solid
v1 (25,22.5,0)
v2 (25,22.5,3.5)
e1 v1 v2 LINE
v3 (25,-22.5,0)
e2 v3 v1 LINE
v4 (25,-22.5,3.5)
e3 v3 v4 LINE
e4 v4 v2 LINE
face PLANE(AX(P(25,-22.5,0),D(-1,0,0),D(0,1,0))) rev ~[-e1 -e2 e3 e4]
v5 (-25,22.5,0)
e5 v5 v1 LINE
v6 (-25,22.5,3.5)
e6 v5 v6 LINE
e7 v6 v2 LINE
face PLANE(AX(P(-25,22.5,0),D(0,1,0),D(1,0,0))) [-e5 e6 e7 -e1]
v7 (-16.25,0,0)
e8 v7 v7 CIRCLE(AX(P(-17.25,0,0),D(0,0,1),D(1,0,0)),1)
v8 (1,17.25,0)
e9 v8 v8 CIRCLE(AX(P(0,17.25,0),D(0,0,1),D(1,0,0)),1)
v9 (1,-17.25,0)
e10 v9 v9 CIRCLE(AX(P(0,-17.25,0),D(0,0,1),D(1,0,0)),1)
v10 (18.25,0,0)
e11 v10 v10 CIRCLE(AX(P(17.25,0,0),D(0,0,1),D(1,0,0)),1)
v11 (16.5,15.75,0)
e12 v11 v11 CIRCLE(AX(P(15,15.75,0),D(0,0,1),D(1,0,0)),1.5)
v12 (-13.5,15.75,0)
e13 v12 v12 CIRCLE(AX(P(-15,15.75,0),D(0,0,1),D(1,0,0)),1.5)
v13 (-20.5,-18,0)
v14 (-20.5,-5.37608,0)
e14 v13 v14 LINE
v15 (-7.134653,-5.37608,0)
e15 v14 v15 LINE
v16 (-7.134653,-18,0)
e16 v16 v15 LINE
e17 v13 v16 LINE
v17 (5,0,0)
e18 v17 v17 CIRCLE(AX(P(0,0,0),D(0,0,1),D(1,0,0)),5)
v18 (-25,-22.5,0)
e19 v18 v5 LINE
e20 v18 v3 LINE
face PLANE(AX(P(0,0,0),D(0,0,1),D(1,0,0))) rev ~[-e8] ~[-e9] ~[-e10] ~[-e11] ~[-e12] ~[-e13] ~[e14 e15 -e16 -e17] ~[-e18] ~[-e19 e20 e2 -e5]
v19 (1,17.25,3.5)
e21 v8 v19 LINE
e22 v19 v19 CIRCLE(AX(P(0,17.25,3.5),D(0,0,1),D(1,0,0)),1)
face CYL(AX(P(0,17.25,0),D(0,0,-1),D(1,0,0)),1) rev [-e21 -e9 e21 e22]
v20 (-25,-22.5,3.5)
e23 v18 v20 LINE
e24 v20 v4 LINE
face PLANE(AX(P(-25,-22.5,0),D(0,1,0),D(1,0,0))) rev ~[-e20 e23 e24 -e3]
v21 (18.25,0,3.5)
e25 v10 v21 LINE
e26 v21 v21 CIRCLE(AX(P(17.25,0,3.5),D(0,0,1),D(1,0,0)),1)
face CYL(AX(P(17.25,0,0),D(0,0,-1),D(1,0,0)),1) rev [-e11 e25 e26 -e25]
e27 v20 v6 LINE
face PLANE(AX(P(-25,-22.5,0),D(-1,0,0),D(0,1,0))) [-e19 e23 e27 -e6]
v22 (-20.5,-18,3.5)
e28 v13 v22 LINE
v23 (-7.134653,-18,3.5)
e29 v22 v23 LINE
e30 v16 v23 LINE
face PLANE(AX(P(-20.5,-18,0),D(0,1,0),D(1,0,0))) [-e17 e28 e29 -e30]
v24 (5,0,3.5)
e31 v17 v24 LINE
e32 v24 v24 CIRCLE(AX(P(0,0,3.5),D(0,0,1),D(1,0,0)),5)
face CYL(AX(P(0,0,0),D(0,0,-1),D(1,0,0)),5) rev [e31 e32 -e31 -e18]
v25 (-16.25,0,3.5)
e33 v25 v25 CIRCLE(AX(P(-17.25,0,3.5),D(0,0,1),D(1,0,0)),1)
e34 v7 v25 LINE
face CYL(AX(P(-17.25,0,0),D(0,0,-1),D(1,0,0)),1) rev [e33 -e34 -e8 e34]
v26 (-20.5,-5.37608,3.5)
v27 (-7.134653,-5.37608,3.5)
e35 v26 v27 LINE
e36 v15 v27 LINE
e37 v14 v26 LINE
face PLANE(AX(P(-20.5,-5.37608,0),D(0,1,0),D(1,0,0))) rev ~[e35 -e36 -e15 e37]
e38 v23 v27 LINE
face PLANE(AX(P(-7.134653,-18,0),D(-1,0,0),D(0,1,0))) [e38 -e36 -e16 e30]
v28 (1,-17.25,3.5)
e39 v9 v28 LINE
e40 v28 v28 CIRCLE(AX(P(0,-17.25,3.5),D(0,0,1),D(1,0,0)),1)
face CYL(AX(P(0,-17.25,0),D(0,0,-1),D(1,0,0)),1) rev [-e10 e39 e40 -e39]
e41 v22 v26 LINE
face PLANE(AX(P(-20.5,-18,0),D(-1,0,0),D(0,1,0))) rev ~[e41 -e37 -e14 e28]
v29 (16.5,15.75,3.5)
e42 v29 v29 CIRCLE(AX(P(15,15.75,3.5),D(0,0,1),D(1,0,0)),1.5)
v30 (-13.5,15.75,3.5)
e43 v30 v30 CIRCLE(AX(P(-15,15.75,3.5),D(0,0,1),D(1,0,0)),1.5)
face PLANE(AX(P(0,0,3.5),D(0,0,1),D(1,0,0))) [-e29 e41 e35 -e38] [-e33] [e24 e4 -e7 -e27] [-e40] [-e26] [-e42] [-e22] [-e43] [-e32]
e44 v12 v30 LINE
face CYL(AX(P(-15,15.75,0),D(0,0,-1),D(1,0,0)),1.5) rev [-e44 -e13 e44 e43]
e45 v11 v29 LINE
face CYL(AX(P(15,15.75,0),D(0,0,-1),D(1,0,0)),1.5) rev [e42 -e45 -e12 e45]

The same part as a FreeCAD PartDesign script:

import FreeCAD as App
import Part
import Sketcher
from FreeCAD import Vector


def add_polygon(sketch, points):
    """Adds a closed chain of lines whose ends are joined by coincident constraints."""
    first, n = sketch.GeometryCount, len(points)
    for a, b in zip(points, points[1:] + points[:1]):
        sketch.addGeometry(Part.LineSegment(App.Vector(*a, 0), App.Vector(*b, 0)), False)
    for i in range(n):
        sketch.addConstraint(Sketcher.Constraint("Coincident", first + i, 2, first + (i + 1) % n, 1))

doc = App.newDocument("Part")
body = doc.addObject("PartDesign::Body", "Body")

sketch1 = doc.addObject("Sketcher::SketchObject", "Sketch")
body.addObject(sketch1)
sketch1.AttachmentSupport = (doc.XY_Plane, [""])
sketch1.MapMode = "FlatFace"
add_polygon(sketch1, [(-25, 22.5), (-25, -22.5), (25, -22.5), (25, 22.5)])
add_polygon(sketch1, [(-7.1, -18), (-20.5, -18), (-20.5, -5.4), (-7.1, -5.4)])
sketch1.addGeometry(Part.Circle(Vector(0, -17.2, 0), Vector(0, 0, 1), 1), False)
sketch1.addGeometry(Part.Circle(Vector(-17.2, 0, 0), Vector(0, 0, 1), 1), False)
sketch1.addGeometry(Part.Circle(Vector(-15, 15.8, 0), Vector(0, 0, 1), 1.5), False)
sketch1.addGeometry(Part.Circle(Vector(0, 0, 0), Vector(0, 0, 1), 5), False)
sketch1.addGeometry(Part.Circle(Vector(17.2, 0, 0), Vector(0, 0, 1), 1), False)
sketch1.addGeometry(Part.Circle(Vector(0, 17.2, 0), Vector(0, 0, 1), 1), False)
sketch1.addGeometry(Part.Circle(Vector(15, 15.8, 0), Vector(0, 0, 1), 1.5), False)
sketch1.addConstraint(Sketcher.Constraint("Vertical", 0))
sketch1.addConstraint(Sketcher.Constraint("Horizontal", 1))
sketch1.addConstraint(Sketcher.Constraint("Vertical", 2))
sketch1.addConstraint(Sketcher.Constraint("Horizontal", 3))
sketch1.addConstraint(Sketcher.Constraint("Horizontal", 4))
sketch1.addConstraint(Sketcher.Constraint("Vertical", 5))
sketch1.addConstraint(Sketcher.Constraint("Horizontal", 6))
sketch1.addConstraint(Sketcher.Constraint("Vertical", 7))
sketch1.addConstraint(Sketcher.Constraint("Coincident", 11, 3, -1, 1))
sketch1.addConstraint(Sketcher.Constraint("Equal", 8, 9))
sketch1.addConstraint(Sketcher.Constraint("Equal", 9, 12))
sketch1.addConstraint(Sketcher.Constraint("Equal", 12, 13))
sketch1.addConstraint(Sketcher.Constraint("Equal", 10, 14))
sketch1.addConstraint(Sketcher.Constraint("Symmetric", 9, 3, 12, 3, -1, 1))
sketch1.addConstraint(Sketcher.Constraint("Symmetric", 8, 3, 13, 3, -1, 1))
sketch1.addConstraint(Sketcher.Constraint("Symmetric", 0, 2, 2, 2, -1, 1))
sketch1.addConstraint(Sketcher.Constraint("Symmetric", 10, 3, 14, 3, -2))
sketch1.addConstraint(Sketcher.Constraint("PointOnObject", 8, 3, -2))
sketch1.addConstraint(Sketcher.Constraint("PointOnObject", 9, 3, -1))
sketch1.addConstraint(Sketcher.Constraint("Diameter", 8, 2.0))
sketch1.addConstraint(Sketcher.Constraint("Diameter", 10, 3.0))
sketch1.addConstraint(Sketcher.Constraint("Diameter", 11, 10.0))
sketch1.addConstraint(Sketcher.Constraint("DistanceX", 1, 1, 1, 2, 50.0))
sketch1.addConstraint(Sketcher.Constraint("DistanceY", 0, 2, 0, 1, 45.0))
sketch1.addConstraint(Sketcher.Constraint("DistanceX", 10, 3, -1, 1, 15.0))
sketch1.addConstraint(Sketcher.Constraint("DistanceY", 4, 2, -1, 1, 18.0))
sketch1.addConstraint(Sketcher.Constraint("DistanceY", 8, 3, 10, 3, 33.0))
sketch1.addConstraint(Sketcher.Constraint("DistanceX", 4, 2, -1, 1, 20.5))
sketch1.addConstraint(Sketcher.Constraint("DistanceX", 9, 3, 12, 3, 34.5))
sketch1.addConstraint(Sketcher.Constraint("DistanceY", 10, 3, 13, 3, 1.5))
sketch1.addConstraint(Sketcher.Constraint("DistanceY", 5, 1, 5, 2, 12.623919))
sketch1.addConstraint(Sketcher.Constraint("DistanceX", 4, 2, 4, 1, 13.365347))
pad1 = doc.addObject("PartDesign::Pad", "Pad")
body.addObject(pad1)
pad1.Profile = sketch1
pad1.Length = 3.5

doc.recompute()
